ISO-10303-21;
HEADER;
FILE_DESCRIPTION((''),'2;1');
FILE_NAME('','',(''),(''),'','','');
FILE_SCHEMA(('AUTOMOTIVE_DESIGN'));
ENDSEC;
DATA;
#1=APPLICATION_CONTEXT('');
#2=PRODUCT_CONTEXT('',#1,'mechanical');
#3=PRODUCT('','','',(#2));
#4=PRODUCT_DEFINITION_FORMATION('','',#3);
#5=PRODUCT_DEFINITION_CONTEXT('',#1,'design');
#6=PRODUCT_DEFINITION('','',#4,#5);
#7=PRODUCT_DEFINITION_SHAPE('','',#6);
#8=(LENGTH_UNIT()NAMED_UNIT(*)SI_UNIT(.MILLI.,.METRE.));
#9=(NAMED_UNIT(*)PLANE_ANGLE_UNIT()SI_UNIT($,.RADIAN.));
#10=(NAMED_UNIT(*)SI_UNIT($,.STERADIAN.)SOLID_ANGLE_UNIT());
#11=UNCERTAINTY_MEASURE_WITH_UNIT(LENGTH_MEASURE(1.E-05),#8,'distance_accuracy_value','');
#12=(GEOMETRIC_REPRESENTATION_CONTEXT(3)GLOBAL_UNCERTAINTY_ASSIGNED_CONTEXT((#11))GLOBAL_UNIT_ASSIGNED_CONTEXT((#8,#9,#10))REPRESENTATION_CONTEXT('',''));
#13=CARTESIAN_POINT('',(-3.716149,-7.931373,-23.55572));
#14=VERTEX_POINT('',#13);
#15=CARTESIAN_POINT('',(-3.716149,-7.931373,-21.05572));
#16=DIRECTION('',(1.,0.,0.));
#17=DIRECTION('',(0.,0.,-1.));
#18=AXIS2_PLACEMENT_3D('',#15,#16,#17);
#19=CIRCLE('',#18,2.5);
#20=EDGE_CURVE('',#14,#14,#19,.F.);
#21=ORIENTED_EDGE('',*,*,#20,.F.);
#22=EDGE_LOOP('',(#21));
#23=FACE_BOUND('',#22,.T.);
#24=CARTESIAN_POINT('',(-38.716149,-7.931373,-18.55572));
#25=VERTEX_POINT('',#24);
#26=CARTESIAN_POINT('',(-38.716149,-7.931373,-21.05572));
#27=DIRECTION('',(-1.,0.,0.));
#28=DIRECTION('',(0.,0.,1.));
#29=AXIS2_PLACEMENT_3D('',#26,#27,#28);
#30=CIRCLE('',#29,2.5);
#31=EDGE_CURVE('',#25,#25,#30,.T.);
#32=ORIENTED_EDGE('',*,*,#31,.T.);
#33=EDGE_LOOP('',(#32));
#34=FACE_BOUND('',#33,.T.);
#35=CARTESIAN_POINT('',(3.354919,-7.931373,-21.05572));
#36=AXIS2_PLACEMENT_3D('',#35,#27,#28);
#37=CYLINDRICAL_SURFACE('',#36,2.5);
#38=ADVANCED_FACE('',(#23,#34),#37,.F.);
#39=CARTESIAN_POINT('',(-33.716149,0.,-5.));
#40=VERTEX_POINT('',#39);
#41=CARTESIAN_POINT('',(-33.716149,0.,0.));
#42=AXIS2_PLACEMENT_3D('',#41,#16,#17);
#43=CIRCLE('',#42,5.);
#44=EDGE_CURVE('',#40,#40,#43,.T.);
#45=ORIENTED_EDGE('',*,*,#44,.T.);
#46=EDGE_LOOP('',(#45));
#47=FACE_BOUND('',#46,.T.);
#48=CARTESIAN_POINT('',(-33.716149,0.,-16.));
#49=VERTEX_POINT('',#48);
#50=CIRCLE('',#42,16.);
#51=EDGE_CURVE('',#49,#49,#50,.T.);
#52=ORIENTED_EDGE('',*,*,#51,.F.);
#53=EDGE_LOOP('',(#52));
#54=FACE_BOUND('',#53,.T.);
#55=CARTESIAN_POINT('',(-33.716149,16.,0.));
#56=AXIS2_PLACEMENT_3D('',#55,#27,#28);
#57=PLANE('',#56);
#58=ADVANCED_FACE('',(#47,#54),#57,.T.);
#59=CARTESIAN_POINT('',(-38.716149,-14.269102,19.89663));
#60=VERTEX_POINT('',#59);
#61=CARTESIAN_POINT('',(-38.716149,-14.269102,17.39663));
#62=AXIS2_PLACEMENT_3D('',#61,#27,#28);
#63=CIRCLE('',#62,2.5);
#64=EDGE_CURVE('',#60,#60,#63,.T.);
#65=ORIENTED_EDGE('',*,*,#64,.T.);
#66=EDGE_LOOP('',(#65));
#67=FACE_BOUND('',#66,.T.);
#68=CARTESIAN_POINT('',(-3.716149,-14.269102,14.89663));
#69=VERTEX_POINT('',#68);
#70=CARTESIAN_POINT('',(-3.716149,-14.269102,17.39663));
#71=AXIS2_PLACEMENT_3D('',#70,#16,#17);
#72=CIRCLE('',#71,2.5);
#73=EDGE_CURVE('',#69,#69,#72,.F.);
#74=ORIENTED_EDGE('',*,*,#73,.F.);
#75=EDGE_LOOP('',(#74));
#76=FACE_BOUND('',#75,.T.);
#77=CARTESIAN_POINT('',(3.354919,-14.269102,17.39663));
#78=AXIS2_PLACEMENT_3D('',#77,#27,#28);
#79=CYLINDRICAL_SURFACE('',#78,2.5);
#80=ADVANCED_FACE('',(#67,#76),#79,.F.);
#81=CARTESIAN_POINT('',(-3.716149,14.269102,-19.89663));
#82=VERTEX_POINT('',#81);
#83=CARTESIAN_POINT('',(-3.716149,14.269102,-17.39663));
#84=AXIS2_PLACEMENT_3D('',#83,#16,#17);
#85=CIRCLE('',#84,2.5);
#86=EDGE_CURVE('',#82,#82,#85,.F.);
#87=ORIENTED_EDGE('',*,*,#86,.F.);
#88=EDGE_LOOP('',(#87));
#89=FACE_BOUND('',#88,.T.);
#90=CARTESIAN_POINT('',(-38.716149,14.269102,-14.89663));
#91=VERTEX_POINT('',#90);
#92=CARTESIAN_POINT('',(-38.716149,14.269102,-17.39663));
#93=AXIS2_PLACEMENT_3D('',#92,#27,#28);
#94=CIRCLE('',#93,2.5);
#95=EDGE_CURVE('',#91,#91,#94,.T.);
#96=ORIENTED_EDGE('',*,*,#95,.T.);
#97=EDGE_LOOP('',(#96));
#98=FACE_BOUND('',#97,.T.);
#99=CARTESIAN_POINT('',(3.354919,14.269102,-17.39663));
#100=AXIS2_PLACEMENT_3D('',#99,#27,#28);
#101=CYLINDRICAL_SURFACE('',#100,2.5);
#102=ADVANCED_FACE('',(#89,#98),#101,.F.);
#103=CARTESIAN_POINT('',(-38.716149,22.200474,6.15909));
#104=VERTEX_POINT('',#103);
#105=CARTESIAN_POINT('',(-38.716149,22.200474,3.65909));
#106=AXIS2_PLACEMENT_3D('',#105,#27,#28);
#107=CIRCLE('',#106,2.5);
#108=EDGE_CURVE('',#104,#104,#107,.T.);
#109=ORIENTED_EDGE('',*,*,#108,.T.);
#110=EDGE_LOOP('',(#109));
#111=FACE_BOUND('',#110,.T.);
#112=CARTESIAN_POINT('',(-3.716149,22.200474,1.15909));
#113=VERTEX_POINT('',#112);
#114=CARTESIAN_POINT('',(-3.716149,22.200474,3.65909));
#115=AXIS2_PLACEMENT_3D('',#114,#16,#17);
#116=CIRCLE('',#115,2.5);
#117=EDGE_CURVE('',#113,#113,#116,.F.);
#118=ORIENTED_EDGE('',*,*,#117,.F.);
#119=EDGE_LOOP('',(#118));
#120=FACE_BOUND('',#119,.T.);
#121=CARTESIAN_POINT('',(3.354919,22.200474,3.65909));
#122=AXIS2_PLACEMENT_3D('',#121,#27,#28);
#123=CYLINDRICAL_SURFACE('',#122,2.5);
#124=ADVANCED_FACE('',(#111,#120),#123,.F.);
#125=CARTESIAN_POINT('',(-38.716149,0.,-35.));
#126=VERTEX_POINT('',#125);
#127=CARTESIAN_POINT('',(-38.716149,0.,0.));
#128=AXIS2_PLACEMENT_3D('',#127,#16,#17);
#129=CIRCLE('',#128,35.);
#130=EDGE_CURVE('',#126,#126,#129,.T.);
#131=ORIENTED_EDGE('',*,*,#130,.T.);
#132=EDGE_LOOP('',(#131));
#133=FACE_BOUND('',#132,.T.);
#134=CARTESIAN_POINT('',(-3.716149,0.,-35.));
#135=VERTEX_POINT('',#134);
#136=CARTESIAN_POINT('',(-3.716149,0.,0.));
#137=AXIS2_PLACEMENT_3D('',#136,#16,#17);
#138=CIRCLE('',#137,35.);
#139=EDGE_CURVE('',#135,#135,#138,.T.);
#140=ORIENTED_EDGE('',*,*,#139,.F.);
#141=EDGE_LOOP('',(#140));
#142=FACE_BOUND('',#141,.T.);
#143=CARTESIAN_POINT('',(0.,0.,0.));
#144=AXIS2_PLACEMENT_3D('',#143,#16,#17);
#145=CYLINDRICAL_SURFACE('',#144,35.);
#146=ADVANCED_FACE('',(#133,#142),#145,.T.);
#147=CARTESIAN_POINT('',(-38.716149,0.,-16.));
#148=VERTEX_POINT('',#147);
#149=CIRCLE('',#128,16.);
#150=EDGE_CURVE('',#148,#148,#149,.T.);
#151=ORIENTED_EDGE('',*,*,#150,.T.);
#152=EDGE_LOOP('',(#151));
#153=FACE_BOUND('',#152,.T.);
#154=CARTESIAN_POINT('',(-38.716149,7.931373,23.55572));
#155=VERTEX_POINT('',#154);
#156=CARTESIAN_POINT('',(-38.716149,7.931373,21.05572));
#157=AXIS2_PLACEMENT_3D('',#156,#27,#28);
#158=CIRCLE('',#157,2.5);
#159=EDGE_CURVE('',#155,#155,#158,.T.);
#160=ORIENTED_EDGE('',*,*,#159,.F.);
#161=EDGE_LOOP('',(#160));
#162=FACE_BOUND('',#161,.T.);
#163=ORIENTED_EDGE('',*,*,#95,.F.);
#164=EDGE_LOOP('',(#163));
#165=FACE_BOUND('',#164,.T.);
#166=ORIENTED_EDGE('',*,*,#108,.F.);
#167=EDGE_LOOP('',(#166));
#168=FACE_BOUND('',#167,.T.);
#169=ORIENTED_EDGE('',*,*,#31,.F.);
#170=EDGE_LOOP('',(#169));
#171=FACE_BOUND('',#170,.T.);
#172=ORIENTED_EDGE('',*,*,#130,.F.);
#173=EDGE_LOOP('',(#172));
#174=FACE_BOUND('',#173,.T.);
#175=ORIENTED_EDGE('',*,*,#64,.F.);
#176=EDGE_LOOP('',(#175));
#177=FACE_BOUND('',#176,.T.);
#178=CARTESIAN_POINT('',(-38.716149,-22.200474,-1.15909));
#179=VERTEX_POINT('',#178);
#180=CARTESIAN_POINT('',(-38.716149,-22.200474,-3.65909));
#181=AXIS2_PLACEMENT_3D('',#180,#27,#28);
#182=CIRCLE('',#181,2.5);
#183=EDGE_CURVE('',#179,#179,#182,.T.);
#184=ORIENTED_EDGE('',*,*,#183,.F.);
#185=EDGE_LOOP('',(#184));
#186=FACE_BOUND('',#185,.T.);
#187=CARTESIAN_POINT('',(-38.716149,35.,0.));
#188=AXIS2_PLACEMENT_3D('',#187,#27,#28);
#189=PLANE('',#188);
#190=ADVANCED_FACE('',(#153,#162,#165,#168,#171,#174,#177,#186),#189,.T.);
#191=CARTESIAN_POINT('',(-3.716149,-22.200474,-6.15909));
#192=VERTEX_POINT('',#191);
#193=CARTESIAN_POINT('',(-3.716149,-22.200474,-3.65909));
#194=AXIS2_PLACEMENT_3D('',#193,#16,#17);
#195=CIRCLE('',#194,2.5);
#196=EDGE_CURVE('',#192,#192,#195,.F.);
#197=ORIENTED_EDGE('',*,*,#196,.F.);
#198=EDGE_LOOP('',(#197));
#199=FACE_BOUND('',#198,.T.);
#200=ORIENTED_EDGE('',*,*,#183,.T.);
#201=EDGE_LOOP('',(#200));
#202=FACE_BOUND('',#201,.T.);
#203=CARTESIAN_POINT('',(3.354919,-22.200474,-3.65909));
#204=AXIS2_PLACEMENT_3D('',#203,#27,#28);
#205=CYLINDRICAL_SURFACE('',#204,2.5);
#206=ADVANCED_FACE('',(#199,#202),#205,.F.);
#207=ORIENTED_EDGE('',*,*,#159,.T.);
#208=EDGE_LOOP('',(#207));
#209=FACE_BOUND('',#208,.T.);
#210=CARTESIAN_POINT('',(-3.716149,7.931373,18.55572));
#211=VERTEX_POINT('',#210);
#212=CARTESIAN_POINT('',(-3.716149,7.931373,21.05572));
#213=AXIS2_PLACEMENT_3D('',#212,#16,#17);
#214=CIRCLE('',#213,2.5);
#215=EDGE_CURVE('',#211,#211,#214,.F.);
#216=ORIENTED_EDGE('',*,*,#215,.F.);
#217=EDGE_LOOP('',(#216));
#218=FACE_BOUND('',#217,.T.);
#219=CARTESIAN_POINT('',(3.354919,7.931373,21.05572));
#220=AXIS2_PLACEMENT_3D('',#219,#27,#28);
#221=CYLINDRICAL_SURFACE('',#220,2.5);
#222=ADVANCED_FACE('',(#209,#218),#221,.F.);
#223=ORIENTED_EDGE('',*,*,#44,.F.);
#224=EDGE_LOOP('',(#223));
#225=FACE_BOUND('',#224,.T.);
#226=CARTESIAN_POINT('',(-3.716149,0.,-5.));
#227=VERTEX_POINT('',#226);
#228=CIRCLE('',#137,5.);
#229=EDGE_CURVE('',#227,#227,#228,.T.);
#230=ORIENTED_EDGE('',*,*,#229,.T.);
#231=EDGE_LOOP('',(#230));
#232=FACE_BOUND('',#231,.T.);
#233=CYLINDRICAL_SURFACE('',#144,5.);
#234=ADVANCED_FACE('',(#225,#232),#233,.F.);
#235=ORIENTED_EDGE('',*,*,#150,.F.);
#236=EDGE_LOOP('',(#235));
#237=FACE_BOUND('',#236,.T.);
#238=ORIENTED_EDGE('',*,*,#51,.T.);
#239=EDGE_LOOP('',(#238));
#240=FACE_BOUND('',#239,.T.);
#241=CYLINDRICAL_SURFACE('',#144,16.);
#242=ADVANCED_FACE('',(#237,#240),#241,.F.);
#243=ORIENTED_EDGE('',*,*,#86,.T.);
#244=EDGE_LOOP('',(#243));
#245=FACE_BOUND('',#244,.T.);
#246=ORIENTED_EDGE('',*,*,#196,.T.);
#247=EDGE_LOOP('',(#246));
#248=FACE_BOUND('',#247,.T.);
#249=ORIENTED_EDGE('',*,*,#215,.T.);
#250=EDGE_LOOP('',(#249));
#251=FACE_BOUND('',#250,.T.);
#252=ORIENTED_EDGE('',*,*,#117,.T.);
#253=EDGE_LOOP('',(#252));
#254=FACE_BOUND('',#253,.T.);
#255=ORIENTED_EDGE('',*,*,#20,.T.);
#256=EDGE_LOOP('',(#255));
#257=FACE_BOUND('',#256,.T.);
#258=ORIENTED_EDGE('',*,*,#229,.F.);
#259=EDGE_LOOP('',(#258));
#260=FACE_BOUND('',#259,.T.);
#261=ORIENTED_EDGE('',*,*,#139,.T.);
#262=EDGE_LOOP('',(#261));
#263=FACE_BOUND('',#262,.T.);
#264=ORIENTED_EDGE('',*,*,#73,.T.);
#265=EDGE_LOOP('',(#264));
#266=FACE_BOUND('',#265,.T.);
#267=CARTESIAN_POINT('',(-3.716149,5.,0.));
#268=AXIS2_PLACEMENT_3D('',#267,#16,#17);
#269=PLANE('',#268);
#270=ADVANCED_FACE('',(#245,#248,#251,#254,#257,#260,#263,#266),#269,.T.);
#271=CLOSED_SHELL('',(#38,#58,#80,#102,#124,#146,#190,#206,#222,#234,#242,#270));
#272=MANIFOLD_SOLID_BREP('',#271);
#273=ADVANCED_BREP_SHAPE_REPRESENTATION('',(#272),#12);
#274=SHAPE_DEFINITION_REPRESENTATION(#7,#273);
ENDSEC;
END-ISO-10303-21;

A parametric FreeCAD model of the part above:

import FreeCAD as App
import Part
import Sketcher
from FreeCAD import Vector
Q = App.Units.Quantity


def add_polygon(sketch, points):
    """Adds a closed chain of lines whose ends are joined by coincident constraints."""
    first, n = sketch.GeometryCount, len(points)
    for a, b in zip(points, points[1:] + points[:1]):
        sketch.addGeometry(Part.LineSegment(App.Vector(*a, 0), App.Vector(*b, 0)), False)
    for i in range(n):
        sketch.addConstraint(Sketcher.Constraint("Coincident", first + i, 2, first + (i + 1) % n, 1))

doc = App.newDocument("Part")
params = doc.addObject("Spreadsheet::Sheet", "Params")
for row, (alias, value) in enumerate([
    ("sketch1_width", "5 mm"),
    ("sketch1_width2", "30 mm"),
    ("sketch1_height", "19 mm"),
    ("revolution_angle", "360 deg"),
    ("sketch2_diameter", "5 mm"),
    ("pocket1_length", "35 mm"),
], start=1):
    params.set(f"A{row}", alias)
    params.set(f"B{row}", "=" + value)
    params.setAlias(f"B{row}", alias)

body = doc.addObject("PartDesign::Body", "Body")

# Sketch on XY plane
sketch1 = body.newObject("Sketcher::SketchObject", "Sketch")
sketch1.AttachmentSupport = (doc.getObject("XY_Plane"), [""])
sketch1.MapMode = "FlatFace"
add_polygon(sketch1, [(-39, 35), (-39, 16), (-34, 16), (-34, 5), (-4, 5), (-4, 35)])  # lines 0-5
sketch1.addConstraint(Sketcher.Constraint("Vertical", 0))
sketch1.addConstraint(Sketcher.Constraint("Horizontal", 1))
sketch1.addConstraint(Sketcher.Constraint("Vertical", 2))
sketch1.addConstraint(Sketcher.Constraint("Horizontal", 3))
sketch1.addConstraint(Sketcher.Constraint("Vertical", 4))
sketch1.addConstraint(Sketcher.Constraint("Horizontal", 5))
sketch1.addConstraint(Sketcher.Constraint("Equal", 3, 4))
sketch1.addConstraint(Sketcher.Constraint("DistanceX", 1, 1, 1, 2, Q("5 mm")))
sketch1.addConstraint(Sketcher.Constraint("DistanceX", 3, 1, 3, 2, Q("30 mm")))
sketch1.addConstraint(Sketcher.Constraint("DistanceY", 0, 2, 0, 1, Q("19 mm")))
sketch1.addConstraint(Sketcher.Constraint("DistanceY", -1, 1, 0, 2, Q("16 mm")))
sketch1.addConstraint(Sketcher.Constraint("DistanceX", 0, 2, -1, 1, Q("38.716149 mm")))
sketch1.setExpression("Constraints[13]", "Params.sketch1_width")
sketch1.setExpression("Constraints[14]", "Params.sketch1_width2")
sketch1.setExpression("Constraints[15]", "Params.sketch1_height")
revolution = body.newObject("PartDesign::Revolution", "Revolution")
revolution.Profile = sketch1
revolution.ReferenceAxis = (sketch1, ["H_Axis"])
revolution.setExpression("Angle", "Params.revolution_angle")

# Sketch on YZ plane
sketch2 = body.newObject("Sketcher::SketchObject", "Sketch001")
sketch2.AttachmentSupport = (doc.getObject("YZ_Plane"), [""])
sketch2.MapMode = "FlatFace"
sketch2.AttachmentOffset = App.Placement(Vector(0, 0, -38.716149), App.Rotation())
sketch2.addGeometry(Part.Circle(Vector(7.9, 21.1, 0), Vector(0, 0, 1), 2.5), False)
sketch2.addGeometry(Part.Circle(Vector(-14.3, 17.4, 0), Vector(0, 0, 1), 2.5), False)
sketch2.addGeometry(Part.Circle(Vector(-22.2, -3.7, 0), Vector(0, 0, 1), 2.5), False)
sketch2.addGeometry(Part.Circle(Vector(-7.9, -21.1, 0), Vector(0, 0, 1), 2.5), False)
sketch2.addGeometry(Part.Circle(Vector(14.3, -17.4, 0), Vector(0, 0, 1), 2.5), False)
sketch2.addGeometry(Part.Circle(Vector(22.2, 3.7, 0), Vector(0, 0, 1), 2.5), False)
sketch2.addConstraint(Sketcher.Constraint("Equal", 0, 1))
sketch2.addConstraint(Sketcher.Constraint("Equal", 1, 2))
sketch2.addConstraint(Sketcher.Constraint("Equal", 2, 3))
sketch2.addConstraint(Sketcher.Constraint("Equal", 3, 4))
sketch2.addConstraint(Sketcher.Constraint("Equal", 4, 5))
sketch2.addConstraint(Sketcher.Constraint("Symmetric", 0, 3, 3, 3, -1, 1))
sketch2.addConstraint(Sketcher.Constraint("Symmetric", 1, 3, 4, 3, -1, 1))
sketch2.addConstraint(Sketcher.Constraint("Symmetric", 2, 3, 5, 3, -1, 1))
sketch2.addConstraint(Sketcher.Constraint("Diameter", 0, Q("5 mm")))
sketch2.addConstraint(Sketcher.Constraint("DistanceX", 1, 3, -1, 1, Q("14.269102 mm")))
sketch2.addConstraint(Sketcher.Constraint("DistanceX", 2, 3, 3, 3, Q("14.269102 mm")))
sketch2.addConstraint(Sketcher.Constraint("DistanceY", -1, 1, 0, 3, Q("21.05572 mm")))
sketch2.addConstraint(Sketcher.Constraint("DistanceY", -1, 1, 1, 3, Q("17.39663 mm")))
sketch2.addConstraint(Sketcher.Constraint("DistanceY", 2, 3, -1, 1, Q("3.65909 mm")))
sketch2.addConstraint(Sketcher.Constraint("DistanceX", 1, 3, 3, 3, Q("6.337729 mm")))
sketch2.setExpression("Constraints[8]", "Params.sketch2_diameter")
pocket1 = body.newObject("PartDesign::Pocket", "Pocket")
pocket1.Profile = sketch2
pocket1.setExpression("Length", "Params.pocket1_length")
pocket1.Reversed = True

doc.recompute()
